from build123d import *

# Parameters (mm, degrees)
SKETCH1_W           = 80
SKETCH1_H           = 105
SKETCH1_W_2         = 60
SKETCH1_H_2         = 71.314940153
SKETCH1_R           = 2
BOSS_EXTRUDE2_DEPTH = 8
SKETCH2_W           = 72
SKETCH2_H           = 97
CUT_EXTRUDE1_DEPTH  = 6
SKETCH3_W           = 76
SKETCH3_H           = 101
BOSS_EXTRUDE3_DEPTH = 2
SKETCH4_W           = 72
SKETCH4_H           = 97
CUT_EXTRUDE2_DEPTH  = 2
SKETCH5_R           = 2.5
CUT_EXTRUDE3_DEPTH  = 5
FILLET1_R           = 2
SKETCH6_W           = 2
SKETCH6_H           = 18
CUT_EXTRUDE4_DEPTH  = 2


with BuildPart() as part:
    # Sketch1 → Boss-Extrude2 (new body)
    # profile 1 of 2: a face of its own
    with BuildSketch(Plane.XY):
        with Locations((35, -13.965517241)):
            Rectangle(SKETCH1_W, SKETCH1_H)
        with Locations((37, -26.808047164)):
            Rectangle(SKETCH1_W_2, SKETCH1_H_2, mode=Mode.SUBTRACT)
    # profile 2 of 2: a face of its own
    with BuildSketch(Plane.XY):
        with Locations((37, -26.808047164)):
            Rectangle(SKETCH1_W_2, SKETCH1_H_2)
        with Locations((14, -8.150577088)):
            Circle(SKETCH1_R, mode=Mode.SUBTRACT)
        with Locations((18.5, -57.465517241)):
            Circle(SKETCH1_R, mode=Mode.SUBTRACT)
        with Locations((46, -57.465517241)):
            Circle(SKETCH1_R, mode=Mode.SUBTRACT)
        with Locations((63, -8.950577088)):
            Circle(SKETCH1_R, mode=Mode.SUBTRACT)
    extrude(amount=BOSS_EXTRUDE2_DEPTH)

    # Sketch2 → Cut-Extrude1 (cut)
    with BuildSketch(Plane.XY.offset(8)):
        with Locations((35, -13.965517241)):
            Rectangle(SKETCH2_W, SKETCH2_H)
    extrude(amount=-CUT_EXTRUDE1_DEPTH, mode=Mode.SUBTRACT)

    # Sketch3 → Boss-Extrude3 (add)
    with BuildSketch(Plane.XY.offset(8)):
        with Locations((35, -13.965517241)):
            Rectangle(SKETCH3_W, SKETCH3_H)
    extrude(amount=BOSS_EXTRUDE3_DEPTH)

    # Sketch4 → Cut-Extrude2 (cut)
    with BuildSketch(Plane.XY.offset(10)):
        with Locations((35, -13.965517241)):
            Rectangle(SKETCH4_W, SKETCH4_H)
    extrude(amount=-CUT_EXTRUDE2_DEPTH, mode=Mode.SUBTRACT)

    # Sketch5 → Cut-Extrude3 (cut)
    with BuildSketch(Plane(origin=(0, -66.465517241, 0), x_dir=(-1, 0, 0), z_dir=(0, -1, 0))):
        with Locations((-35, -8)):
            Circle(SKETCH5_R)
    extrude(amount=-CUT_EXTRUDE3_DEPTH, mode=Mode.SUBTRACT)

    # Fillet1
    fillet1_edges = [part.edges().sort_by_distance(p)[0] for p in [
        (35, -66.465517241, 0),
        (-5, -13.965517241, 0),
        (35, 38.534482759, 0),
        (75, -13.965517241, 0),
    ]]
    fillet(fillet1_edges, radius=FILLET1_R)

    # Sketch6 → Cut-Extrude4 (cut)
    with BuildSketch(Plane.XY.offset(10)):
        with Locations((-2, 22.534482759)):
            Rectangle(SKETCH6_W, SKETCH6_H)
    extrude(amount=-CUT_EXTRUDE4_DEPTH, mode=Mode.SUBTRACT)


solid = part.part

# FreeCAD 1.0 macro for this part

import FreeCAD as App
import Part
import Sketcher

V = App.Vector
Q = App.Units.Quantity


def edges_at(feature, points):
    """Names of the edges that pass closest to the given points."""
    edges = feature.Shape.Edges
    near = lambda p: min(range(len(edges)), key=lambda i: edges[i].distToShape(Part.Vertex(*p))[0])
    return sorted({f"Edge{near(p) + 1}" for p in points})

doc = App.newDocument("Part")
params = doc.addObject("Spreadsheet::Sheet", "Params")
for row, (alias, value) in enumerate([
    ("sketch1_diameter", "4 mm"),
    ("sketch1_width", "80 mm"),
    ("sketch1_height", "105 mm"),
    ("pad1_length", "8 mm"),
    ("sketch2_width", "72 mm"),
    ("sketch2_height", "97 mm"),
    ("pocket1_length", "6 mm"),
    ("sketch3_width", "76 mm"),
    ("sketch3_height", "101 mm"),
    ("pad2_length", "2 mm"),
    ("sketch4_width", "72 mm"),
    ("sketch4_height", "97 mm"),
    ("pocket2_length", "2 mm"),
    ("sketch5_diameter", "5 mm"),
    ("pocket3_length", "5 mm"),
    ("fillet_radius", "2 mm"),
    ("sketch6_width", "2 mm"),
    ("sketch6_height", "18 mm"),
    ("pocket4_length", "2 mm"),
], start=1):
    params.set(f"A{row}", alias)
    params.set(f"B{row}", "=" + value)
    params.setAlias(f"B{row}", alias)

body = doc.addObject("PartDesign::Body", "Body")

sketch1 = body.newObject("Sketcher::SketchObject", "Sketch")
sketch1.AttachmentSupport = (doc.getObject("XY_Plane"), [""])
sketch1.MapMode = "FlatFace"
sketch1.addGeometry([
    Part.LineSegment(V(-5, 38.534483, 0), V(-5, -66.465517, 0)),
    Part.LineSegment(V(-5, -66.465517, 0), V(75, -66.465517, 0)),
    Part.LineSegment(V(75, -66.465517, 0), V(75, 38.534483, 0)),
    Part.LineSegment(V(75, 38.534483, 0), V(-5, 38.534483, 0)),
    Part.Circle(V(18.5, -57.465517, 0), V(0, 0, 1), 2),
    Part.Circle(V(63, -8.950577, 0), V(0, 0, 1), 2),
    Part.Circle(V(46, -57.465517, 0), V(0, 0, 1), 2),
    Part.Circle(V(14, -8.150577, 0), V(0, 0, 1), 2),
], False)
sketch1.addConstraint([
    Sketcher.Constraint("Coincident", 0, 2, 1, 1),
    Sketcher.Constraint("Coincident", 1, 2, 2, 1),
    Sketcher.Constraint("Coincident", 2, 2, 3, 1),
    Sketcher.Constraint("Coincident", 3, 2, 0, 1),
    Sketcher.Constraint("Vertical", 0),
    Sketcher.Constraint("Horizontal", 1),
    Sketcher.Constraint("Vertical", 2),
    Sketcher.Constraint("Horizontal", 3),
    Sketcher.Constraint("Equal", 4, 5),
    Sketcher.Constraint("Equal", 5, 6),
    Sketcher.Constraint("Equal", 6, 7),
    Sketcher.Constraint("Horizontal", 4, 3, 6, 3),
    Sketcher.Constraint("Diameter", 4, Q("4 mm")),
    Sketcher.Constraint("DistanceX", 1, 1, 1, 2, Q("80 mm")),
    Sketcher.Constraint("DistanceY", 0, 2, 0, 1, Q("105 mm")),
    Sketcher.Constraint("DistanceX", -1, 1, 5, 3, Q("63 mm")),
    Sketcher.Constraint("DistanceX", -1, 1, 6, 3, Q("46 mm")),
    Sketcher.Constraint("DistanceX", -1, 1, 7, 3, Q("14 mm")),
    Sketcher.Constraint("DistanceX", 0, 2, -1, 1, Q("5 mm")),
    Sketcher.Constraint("DistanceY", 0, 2, 4, 3, Q("9 mm")),
    Sketcher.Constraint("DistanceX", -1, 1, 4, 3, Q("18.5 mm")),
    Sketcher.Constraint("DistanceY", 5, 3, 7, 3, Q("0.8 mm")),
    Sketcher.Constraint("DistanceY", 4, 3, 5, 3, Q("48.51494 mm")),
    Sketcher.Constraint("DistanceY", 4, 3, -1, 1, Q("57.465517 mm")),
])
sketch1.setExpression("Constraints[12]", "Params.sketch1_diameter")
sketch1.setExpression("Constraints[13]", "Params.sketch1_width")
sketch1.setExpression("Constraints[14]", "Params.sketch1_height")
pad1 = body.newObject("PartDesign::Pad", "Pad")
pad1.Profile = sketch1
pad1.setExpression("Length", "Params.pad1_length")

sketch2 = body.newObject("Sketcher::SketchObject", "Sketch001")
sketch2.AttachmentSupport = (doc.getObject("XY_Plane"), [""])
sketch2.MapMode = "FlatFace"
sketch2.AttachmentOffset = App.Placement(V(0, 0, 8), App.Rotation())
sketch2.addGeometry([
    Part.LineSegment(V(-1, 34.534483, 0), V(-1, -62.465517, 0)),
    Part.LineSegment(V(-1, -62.465517, 0), V(71, -62.465517, 0)),
    Part.LineSegment(V(71, -62.465517, 0), V(71, 34.534483, 0)),
    Part.LineSegment(V(71, 34.534483, 0), V(-1, 34.534483, 0)),
], False)
sketch2.addConstraint([
    Sketcher.Constraint("Coincident", 0, 2, 1, 1),
    Sketcher.Constraint("Coincident", 1, 2, 2, 1),
    Sketcher.Constraint("Coincident", 2, 2, 3, 1),
    Sketcher.Constraint("Coincident", 3, 2, 0, 1),
    Sketcher.Constraint("Vertical", 0),
    Sketcher.Constraint("Horizontal", 1),
    Sketcher.Constraint("Vertical", 2),
    Sketcher.Constraint("Horizontal", 3),
    Sketcher.Constraint("DistanceX", 1, 1, 1, 2, Q("72 mm")),
    Sketcher.Constraint("DistanceY", 0, 2, 0, 1, Q("97 mm")),
    Sketcher.Constraint("DistanceX", 0, 2, -1, 1, Q("1 mm")),
    Sketcher.Constraint("DistanceY", 0, 2, -1, 1, Q("62.465517 mm")),
])
sketch2.setExpression("Constraints[8]", "Params.sketch2_width")
sketch2.setExpression("Constraints[9]", "Params.sketch2_height")
pocket1 = body.newObject("PartDesign::Pocket", "Pocket")
pocket1.Profile = sketch2
pocket1.setExpression("Length", "Params.pocket1_length")

sketch3 = body.newObject("Sketcher::SketchObject", "Sketch002")
sketch3.AttachmentSupport = (doc.getObject("XY_Plane"), [""])
sketch3.MapMode = "FlatFace"
sketch3.AttachmentOffset = App.Placement(V(0, 0, 8), App.Rotation())
sketch3.addGeometry([
    Part.LineSegment(V(-3, 36.534483, 0), V(-3, -64.465517, 0)),
    Part.LineSegment(V(-3, -64.465517, 0), V(73, -64.465517, 0)),
    Part.LineSegment(V(73, -64.465517, 0), V(73, 36.534483, 0)),
    Part.LineSegment(V(73, 36.534483, 0), V(-3, 36.534483, 0)),
], False)
sketch3.addConstraint([
    Sketcher.Constraint("Coincident", 0, 2, 1, 1),
    Sketcher.Constraint("Coincident", 1, 2, 2, 1),
    Sketcher.Constraint("Coincident", 2, 2, 3, 1),
    Sketcher.Constraint("Coincident", 3, 2, 0, 1),
    Sketcher.Constraint("Vertical", 0),
    Sketcher.Constraint("Horizontal", 1),
    Sketcher.Constraint("Vertical", 2),
    Sketcher.Constraint("Horizontal", 3),
    Sketcher.Constraint("DistanceX", 1, 1, 1, 2, Q("76 mm")),
    Sketcher.Constraint("DistanceY", 0, 2, 0, 1, Q("101 mm")),
    Sketcher.Constraint("DistanceX", 0, 2, -1, 1, Q("3 mm")),
    Sketcher.Constraint("DistanceY", 0, 2, -1, 1, Q("64.465517 mm")),
])
sketch3.setExpression("Constraints[8]", "Params.sketch3_width")
sketch3.setExpression("Constraints[9]", "Params.sketch3_height")
pad2 = body.newObject("PartDesign::Pad", "Pad001")
pad2.Profile = sketch3
pad2.setExpression("Length", "Params.pad2_length")

sketch4 = body.newObject("Sketcher::SketchObject", "Sketch003")
sketch4.AttachmentSupport = (doc.getObject("XY_Plane"), [""])
sketch4.MapMode = "FlatFace"
sketch4.AttachmentOffset = App.Placement(V(0, 0, 10), App.Rotation())
sketch4.addGeometry([
    Part.LineSegment(V(-1, 34.534483, 0), V(-1, -62.465517, 0)),
    Part.LineSegment(V(-1, -62.465517, 0), V(71, -62.465517, 0)),
    Part.LineSegment(V(71, -62.465517, 0), V(71, 34.534483, 0)),
    Part.LineSegment(V(71, 34.534483, 0), V(-1, 34.534483, 0)),
], False)
sketch4.addConstraint([
    Sketcher.Constraint("Coincident", 0, 2, 1, 1),
    Sketcher.Constraint("Coincident", 1, 2, 2, 1),
    Sketcher.Constraint("Coincident", 2, 2, 3, 1),
    Sketcher.Constraint("Coincident", 3, 2, 0, 1),
    Sketcher.Constraint("Vertical", 0),
    Sketcher.Constraint("Horizontal", 1),
    Sketcher.Constraint("Vertical", 2),
    Sketcher.Constraint("Horizontal", 3),
    Sketcher.Constraint("DistanceX", 1, 1, 1, 2, Q("72 mm")),
    Sketcher.Constraint("DistanceY", 0, 2, 0, 1, Q("97 mm")),
    Sketcher.Constraint("DistanceX", 0, 2, -1, 1, Q("1 mm")),
    Sketcher.Constraint("DistanceY", 0, 2, -1, 1, Q("62.465517 mm")),
])
sketch4.setExpression("Constraints[8]", "Params.sketch4_width")
sketch4.setExpression("Constraints[9]", "Params.sketch4_height")
pocket2 = body.newObject("PartDesign::Pocket", "Pocket001")
pocket2.Profile = sketch4
pocket2.setExpression("Length", "Params.pocket2_length")

sketch5 = body.newObject("Sketcher::SketchObject", "Sketch004")
sketch5.AttachmentSupport = (doc.getObject("XZ_Plane"), [""])
sketch5.MapMode = "FlatFace"
sketch5.AttachmentOffset = App.Placement(V(0, 0, 66.465517), App.Rotation())
sketch5.addGeometry(Part.Circle(V(35, 8, 0), V(0, 0, 1), 2.5), False)
sketch5.addConstraint([
    Sketcher.Constraint("Diameter", 0, Q("5 mm")),
    Sketcher.Constraint("DistanceX", -1, 1, 0, 3, Q("35 mm")),
    Sketcher.Constraint("DistanceY", -1, 1, 0, 3, Q("8 mm")),
])
sketch5.setExpression("Constraints[0]", "Params.sketch5_diameter")
pocket3 = body.newObject("PartDesign::Pocket", "Pocket002")
pocket3.Profile = sketch5
pocket3.setExpression("Length", "Params.pocket3_length")
doc.recompute()

fillet = body.newObject("PartDesign::Fillet", "Fillet")
fillet.Base = (pocket3, edges_at(pocket3, [
    (35, -66.466, 0),
    (-5, -13.966, 0),
    (35, 38.534, 0),
    (75, -13.966, 0),
]))
fillet.setExpression("Radius", "Params.fillet_radius")

sketch6 = body.newObject("Sketcher::SketchObject", "Sketch005")
sketch6.AttachmentSupport = (doc.getObject("XY_Plane"), [""])
sketch6.MapMode = "FlatFace"
sketch6.AttachmentOffset = App.Placement(V(0, 0, 10), App.Rotation())
sketch6.addGeometry([
    Part.LineSegment(V(-3, 31.534483, 0), V(-3, 13.534483, 0)),
    Part.LineSegment(V(-3, 13.534483, 0), V(-1, 13.534483, 0)),
    Part.LineSegment(V(-1, 13.534483, 0), V(-1, 31.534483, 0)),
    Part.LineSegment(V(-1, 31.534483, 0), V(-3, 31.534483, 0)),
], False)
sketch6.addConstraint([
    Sketcher.Constraint("Coincident", 0, 2, 1, 1),
    Sketcher.Constraint("Coincident", 1, 2, 2, 1),
    Sketcher.Constraint("Coincident", 2, 2, 3, 1),
    Sketcher.Constraint("Coincident", 3, 2, 0, 1),
    Sketcher.Constraint("Vertical", 0),
    Sketcher.Constraint("Horizontal", 1),
    Sketcher.Constraint("Vertical", 2),
    Sketcher.Constraint("Horizontal", 3),
    Sketcher.Constraint("DistanceX", 1, 1, 1, 2, Q("2 mm")),
    Sketcher.Constraint("DistanceY", 0, 2, 0, 1, Q("18 mm")),
    Sketcher.Constraint("DistanceX", 0, 2, -1, 1, Q("3 mm")),
    Sketcher.Constraint("DistanceY", -1, 1, 0, 2, Q("13.534483 mm")),
])
sketch6.setExpression("Constraints[8]", "Params.sketch6_width")
sketch6.setExpression("Constraints[9]", "Params.sketch6_height")
pocket4 = body.newObject("PartDesign::Pocket", "Pocket003")
pocket4.Profile = sketch6
pocket4.setExpression("Length", "Params.pocket4_length")

doc.recompute()
